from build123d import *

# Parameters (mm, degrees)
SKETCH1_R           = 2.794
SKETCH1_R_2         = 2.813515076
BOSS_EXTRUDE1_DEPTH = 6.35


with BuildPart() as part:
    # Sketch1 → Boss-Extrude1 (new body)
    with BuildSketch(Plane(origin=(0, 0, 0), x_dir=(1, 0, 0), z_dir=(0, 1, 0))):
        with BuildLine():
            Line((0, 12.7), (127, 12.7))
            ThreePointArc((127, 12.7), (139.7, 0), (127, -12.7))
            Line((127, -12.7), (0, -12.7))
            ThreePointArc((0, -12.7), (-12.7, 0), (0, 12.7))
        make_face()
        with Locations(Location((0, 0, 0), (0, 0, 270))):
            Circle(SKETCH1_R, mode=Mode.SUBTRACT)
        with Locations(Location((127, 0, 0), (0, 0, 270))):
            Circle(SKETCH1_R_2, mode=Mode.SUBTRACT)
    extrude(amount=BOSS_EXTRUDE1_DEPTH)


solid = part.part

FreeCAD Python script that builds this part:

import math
import FreeCAD as App
import Part
import Sketcher
from FreeCAD import Vector
Q = App.Units.Quantity

doc = App.newDocument("Part")
params = doc.addObject("Spreadsheet::Sheet", "Params")
for row, (alias, value) in enumerate([
    ("sketch1_radius", "0.5 in"),
    ("sketch1_diameter", "0.22 in"),
    ("sketch1_width", "5 in"),
    ("pad1_length", "0.25 in"),
], start=1):
    params.set(f"A{row}", alias)
    params.set(f"B{row}", "=" + value)
    params.setAlias(f"B{row}", alias)

body = doc.addObject("PartDesign::Body", "Body")

sketch1 = doc.addObject("Sketcher::SketchObject", "Sketch")
body.addObject(sketch1)
sketch1.AttachmentSupport = (doc.XZ_Plane, [""])
sketch1.MapMode = "FlatFace"
sketch1.addGeometry(Part.LineSegment(Vector(127, -12.7, 0), Vector(0, -12.7, 0)), False)
sketch1.addGeometry(Part.ArcOfCircle(Part.Circle(Vector(0, 0, 0), Vector(0, 0, 1), 12.7), math.radians(90), math.radians(270)), False)
sketch1.addGeometry(Part.LineSegment(Vector(0, 12.7, 0), Vector(127, 12.7, 0)), False)
sketch1.addGeometry(Part.ArcOfCircle(Part.Circle(Vector(127, 0, 0), Vector(0, 0, 1), 12.7), math.radians(-90), math.radians(90)), False)
sketch1.addGeometry(Part.Circle(Vector(127, 0, 0), Vector(0, 0, 1), 2.8), False)
sketch1.addGeometry(Part.Circle(Vector(0, 0, 0), Vector(0, 0, 1), 2.8), False)
sketch1.addConstraint(Sketcher.Constraint("Tangent", 0, 2, 1, 2))
sketch1.addConstraint(Sketcher.Constraint("Tangent", 1, 1, 2, 1))
sketch1.addConstraint(Sketcher.Constraint("Tangent", 2, 2, 3, 2))
sketch1.addConstraint(Sketcher.Constraint("Tangent", 3, 1, 0, 1))
sketch1.addConstraint(Sketcher.Constraint("Horizontal", 0))
sketch1.addConstraint(Sketcher.Constraint("Horizontal", 2))
sketch1.addConstraint(Sketcher.Constraint("Coincident", 1, 3, -1, 1))
sketch1.addConstraint(Sketcher.Constraint("Coincident", 5, 3, -1, 1))
sketch1.addConstraint(Sketcher.Constraint("Coincident", 4, 3, 3, 3))
sketch1.addConstraint(Sketcher.Constraint("Radius", 1, Q("0.5 in")))
sketch1.addConstraint(Sketcher.Constraint("Diameter", 5, Q("0.22 in")))
sketch1.addConstraint(Sketcher.Constraint("DistanceX", 0, 2, 0, 1, Q("5 in")))
sketch1.addConstraint(Sketcher.Constraint("Diameter", 4, Q("5.62703 mm")))
sketch1.setExpression("Constraints[9]", "Params.sketch1_radius")
sketch1.setExpression("Constraints[10]", "Params.sketch1_diameter")
sketch1.setExpression("Constraints[11]", "Params.sketch1_width")
pad1 = doc.addObject("PartDesign::Pad", "Pad")
body.addObject(pad1)
pad1.Profile = sketch1
pad1.setExpression("Length", "Params.pad1_length")
pad1.Reversed = True

doc.recompute()
